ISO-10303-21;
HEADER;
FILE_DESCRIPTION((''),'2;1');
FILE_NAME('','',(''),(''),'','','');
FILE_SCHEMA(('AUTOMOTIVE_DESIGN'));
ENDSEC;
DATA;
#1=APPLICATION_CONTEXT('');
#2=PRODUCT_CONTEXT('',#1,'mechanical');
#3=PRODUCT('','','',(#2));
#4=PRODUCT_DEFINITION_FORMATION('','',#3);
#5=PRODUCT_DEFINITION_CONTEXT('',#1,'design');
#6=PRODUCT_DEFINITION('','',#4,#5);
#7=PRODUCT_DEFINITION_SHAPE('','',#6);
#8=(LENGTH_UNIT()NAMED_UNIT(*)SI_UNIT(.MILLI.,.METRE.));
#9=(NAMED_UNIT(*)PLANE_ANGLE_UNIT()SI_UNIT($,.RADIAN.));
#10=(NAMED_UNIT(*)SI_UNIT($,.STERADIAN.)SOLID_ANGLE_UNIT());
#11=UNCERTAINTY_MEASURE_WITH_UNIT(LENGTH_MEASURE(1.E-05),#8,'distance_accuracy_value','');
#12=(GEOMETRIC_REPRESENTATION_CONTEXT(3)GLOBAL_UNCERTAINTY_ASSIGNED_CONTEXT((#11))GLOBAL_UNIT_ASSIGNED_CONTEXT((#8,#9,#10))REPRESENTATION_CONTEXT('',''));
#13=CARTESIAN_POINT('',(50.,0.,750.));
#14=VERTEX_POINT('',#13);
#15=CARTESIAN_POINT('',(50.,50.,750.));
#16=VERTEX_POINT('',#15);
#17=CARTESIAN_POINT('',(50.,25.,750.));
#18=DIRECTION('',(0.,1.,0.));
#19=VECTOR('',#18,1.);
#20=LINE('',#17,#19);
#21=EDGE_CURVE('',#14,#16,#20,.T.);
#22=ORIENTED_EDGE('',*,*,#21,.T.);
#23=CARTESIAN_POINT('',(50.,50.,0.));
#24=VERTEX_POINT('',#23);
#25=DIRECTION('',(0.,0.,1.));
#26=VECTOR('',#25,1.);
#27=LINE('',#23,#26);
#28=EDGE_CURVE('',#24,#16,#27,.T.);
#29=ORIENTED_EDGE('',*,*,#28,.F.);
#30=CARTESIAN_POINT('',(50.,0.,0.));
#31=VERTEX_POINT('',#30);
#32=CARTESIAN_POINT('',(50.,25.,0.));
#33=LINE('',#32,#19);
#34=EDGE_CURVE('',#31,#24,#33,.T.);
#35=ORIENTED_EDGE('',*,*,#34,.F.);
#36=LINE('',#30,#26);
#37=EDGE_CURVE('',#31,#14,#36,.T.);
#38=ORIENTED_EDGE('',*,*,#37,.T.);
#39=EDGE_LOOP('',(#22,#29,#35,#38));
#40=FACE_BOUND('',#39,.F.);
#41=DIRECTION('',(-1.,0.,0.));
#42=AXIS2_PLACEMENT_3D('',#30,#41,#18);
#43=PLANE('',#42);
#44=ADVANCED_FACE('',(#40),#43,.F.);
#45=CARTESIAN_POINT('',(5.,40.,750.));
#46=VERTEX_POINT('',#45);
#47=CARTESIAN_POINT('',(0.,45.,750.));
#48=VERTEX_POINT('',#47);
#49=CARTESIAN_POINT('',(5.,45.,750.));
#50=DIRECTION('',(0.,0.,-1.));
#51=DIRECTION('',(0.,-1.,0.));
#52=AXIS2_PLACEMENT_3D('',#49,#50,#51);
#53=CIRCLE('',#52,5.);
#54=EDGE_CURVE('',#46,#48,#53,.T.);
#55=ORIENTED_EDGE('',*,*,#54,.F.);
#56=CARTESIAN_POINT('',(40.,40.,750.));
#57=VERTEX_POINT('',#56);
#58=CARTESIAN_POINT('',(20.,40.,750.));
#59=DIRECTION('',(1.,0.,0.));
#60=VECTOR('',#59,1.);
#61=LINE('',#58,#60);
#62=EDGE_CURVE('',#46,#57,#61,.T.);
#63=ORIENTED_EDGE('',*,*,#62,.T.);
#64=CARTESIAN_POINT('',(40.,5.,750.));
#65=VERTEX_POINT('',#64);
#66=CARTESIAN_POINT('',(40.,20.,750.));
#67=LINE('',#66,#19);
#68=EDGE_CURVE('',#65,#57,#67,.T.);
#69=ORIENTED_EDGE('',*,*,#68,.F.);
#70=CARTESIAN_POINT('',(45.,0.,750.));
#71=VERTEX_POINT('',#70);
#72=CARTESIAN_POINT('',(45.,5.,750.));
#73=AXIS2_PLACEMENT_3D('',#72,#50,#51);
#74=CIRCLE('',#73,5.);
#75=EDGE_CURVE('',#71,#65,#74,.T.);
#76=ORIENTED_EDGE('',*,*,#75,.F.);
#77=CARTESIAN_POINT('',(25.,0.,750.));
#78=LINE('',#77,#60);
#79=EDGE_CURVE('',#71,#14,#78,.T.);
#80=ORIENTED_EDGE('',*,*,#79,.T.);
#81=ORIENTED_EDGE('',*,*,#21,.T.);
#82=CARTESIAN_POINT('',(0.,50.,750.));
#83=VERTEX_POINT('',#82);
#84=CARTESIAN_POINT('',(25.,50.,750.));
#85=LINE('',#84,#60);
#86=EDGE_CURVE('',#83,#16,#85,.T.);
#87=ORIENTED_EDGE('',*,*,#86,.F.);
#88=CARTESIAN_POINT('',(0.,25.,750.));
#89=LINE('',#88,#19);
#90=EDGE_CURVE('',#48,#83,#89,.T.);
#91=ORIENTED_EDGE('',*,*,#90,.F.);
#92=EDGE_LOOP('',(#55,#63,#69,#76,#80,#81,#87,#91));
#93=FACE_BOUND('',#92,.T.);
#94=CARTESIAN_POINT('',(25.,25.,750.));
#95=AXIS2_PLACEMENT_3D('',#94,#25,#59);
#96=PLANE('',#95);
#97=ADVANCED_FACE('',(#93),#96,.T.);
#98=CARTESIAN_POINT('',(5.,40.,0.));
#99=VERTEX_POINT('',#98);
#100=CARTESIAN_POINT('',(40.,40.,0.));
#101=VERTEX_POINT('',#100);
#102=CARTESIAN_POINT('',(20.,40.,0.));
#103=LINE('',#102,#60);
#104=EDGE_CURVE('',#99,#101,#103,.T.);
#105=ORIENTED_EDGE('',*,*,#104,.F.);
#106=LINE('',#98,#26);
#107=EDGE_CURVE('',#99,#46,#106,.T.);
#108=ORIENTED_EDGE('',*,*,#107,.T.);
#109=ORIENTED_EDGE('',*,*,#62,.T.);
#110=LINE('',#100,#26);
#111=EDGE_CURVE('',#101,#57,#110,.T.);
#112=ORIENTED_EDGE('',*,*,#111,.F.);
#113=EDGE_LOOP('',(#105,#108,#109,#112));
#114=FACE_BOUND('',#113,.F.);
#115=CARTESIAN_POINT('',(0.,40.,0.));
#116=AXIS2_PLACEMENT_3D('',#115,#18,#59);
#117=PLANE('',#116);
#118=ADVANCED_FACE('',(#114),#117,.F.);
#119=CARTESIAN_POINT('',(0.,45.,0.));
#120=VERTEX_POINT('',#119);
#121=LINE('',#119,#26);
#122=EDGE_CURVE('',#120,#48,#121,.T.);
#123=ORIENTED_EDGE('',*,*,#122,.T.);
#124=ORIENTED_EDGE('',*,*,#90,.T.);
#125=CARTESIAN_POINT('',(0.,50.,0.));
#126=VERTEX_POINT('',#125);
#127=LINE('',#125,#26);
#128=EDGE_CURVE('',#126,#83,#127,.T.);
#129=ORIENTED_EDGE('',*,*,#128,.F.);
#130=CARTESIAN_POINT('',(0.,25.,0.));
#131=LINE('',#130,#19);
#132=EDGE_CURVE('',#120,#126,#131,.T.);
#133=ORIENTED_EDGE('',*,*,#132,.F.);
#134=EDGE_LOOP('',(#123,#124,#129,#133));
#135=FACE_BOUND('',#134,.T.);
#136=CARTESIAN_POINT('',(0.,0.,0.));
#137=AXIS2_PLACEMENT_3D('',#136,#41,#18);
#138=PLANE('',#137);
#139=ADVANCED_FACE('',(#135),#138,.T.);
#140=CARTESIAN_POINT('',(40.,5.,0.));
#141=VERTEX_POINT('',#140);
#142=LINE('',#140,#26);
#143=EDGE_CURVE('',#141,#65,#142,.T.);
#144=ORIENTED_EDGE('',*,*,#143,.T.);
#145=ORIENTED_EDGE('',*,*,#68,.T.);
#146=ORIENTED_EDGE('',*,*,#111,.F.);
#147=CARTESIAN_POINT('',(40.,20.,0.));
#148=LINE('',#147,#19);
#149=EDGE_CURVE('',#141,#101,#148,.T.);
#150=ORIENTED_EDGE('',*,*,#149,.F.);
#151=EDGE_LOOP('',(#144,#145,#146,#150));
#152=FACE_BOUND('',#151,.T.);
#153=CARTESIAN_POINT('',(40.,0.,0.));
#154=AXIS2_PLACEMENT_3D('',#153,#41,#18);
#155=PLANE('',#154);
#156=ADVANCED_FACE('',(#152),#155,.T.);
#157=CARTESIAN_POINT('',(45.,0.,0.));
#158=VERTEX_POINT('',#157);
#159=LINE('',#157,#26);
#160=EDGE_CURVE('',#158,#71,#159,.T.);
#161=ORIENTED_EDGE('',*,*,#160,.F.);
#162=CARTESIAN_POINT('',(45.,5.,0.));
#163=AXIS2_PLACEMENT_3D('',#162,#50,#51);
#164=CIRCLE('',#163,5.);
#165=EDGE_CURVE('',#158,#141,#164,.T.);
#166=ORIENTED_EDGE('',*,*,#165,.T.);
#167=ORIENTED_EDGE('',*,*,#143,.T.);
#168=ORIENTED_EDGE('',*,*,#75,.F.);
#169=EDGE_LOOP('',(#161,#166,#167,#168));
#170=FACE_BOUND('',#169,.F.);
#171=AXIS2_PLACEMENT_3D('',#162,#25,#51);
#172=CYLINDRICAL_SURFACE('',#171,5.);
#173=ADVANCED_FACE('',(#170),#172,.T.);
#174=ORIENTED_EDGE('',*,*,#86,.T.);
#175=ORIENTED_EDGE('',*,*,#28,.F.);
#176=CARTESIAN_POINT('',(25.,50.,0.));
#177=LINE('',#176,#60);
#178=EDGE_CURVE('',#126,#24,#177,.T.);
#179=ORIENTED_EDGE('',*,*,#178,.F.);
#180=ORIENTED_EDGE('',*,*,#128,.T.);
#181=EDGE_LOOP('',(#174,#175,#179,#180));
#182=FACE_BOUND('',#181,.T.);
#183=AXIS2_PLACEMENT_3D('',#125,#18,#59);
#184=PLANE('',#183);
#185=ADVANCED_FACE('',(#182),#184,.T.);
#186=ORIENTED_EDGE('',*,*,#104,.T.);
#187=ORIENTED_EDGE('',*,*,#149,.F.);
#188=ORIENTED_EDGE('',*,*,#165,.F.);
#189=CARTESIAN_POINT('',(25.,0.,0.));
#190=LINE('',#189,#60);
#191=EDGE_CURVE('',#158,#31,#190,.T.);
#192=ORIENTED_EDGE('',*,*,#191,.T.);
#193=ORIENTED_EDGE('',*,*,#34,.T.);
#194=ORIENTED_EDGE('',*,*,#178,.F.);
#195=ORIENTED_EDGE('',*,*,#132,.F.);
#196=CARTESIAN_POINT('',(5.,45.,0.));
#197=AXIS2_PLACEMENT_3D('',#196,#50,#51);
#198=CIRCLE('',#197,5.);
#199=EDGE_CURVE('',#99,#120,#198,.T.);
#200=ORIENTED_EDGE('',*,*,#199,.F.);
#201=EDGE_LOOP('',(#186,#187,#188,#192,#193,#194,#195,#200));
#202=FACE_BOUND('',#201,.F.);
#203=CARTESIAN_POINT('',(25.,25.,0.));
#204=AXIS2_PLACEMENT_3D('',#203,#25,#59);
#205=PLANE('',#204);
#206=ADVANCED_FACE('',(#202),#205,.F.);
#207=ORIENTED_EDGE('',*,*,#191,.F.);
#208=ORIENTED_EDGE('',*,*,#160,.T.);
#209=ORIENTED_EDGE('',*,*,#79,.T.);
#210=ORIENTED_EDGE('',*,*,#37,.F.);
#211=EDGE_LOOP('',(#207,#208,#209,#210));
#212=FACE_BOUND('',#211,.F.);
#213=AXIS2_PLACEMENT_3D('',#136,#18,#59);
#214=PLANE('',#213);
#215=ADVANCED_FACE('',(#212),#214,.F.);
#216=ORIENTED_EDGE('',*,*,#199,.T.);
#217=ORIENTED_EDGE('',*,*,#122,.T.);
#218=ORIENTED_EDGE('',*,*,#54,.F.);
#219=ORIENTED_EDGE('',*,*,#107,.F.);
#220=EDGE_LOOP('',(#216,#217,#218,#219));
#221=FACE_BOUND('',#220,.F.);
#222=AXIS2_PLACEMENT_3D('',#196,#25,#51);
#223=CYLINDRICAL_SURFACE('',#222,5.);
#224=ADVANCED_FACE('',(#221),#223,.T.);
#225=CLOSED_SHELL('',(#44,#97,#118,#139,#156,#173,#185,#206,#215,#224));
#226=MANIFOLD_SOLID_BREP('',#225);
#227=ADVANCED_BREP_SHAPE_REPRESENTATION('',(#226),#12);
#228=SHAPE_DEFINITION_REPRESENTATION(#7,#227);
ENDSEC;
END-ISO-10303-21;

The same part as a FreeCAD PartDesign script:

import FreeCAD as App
import Part
import Sketcher
from FreeCAD import Vector


def edges_at(feature, points):
    """Names of the edges that pass closest to the given points."""
    edges = feature.Shape.Edges
    near = lambda p: min(range(len(edges)), key=lambda i: edges[i].distToShape(Part.Vertex(*p))[0])
    return sorted({f"Edge{near(p) + 1}" for p in points})

doc = App.newDocument("Part")
body = doc.addObject("PartDesign::Body", "Body")

# Sketch on XY plane
sketch1 = body.newObject("Sketcher::SketchObject", "Sketch")
sketch1.AttachmentSupport = (doc.getObject("XY_Plane"), [""])
sketch1.MapMode = "FlatFace"
sketch1.addGeometry([
    Part.LineSegment(Vector(0, 40, 0), Vector(0, 0, 0)),
    Part.LineSegment(Vector(0, 0, 0), Vector(40, 0, 0)),
    Part.LineSegment(Vector(40, 0, 0), Vector(40, 40, 0)),
    Part.LineSegment(Vector(40, 40, 0), Vector(0, 40, 0)),
], False)
sketch1.addConstraint([
    Sketcher.Constraint("Coincident", 0, 2, 1, 1),
    Sketcher.Constraint("Coincident", 1, 2, 2, 1),
    Sketcher.Constraint("Coincident", 2, 2, 3, 1),
    Sketcher.Constraint("Coincident", 3, 2, 0, 1),
    Sketcher.Constraint("Vertical", 0),
    Sketcher.Constraint("Horizontal", 1),
    Sketcher.Constraint("Vertical", 2),
    Sketcher.Constraint("Horizontal", 3),
    Sketcher.Constraint("Coincident", 0, 2, -1, 1),
    Sketcher.Constraint("Equal", 3, 0),
    Sketcher.Constraint("DistanceX", 1, 1, 1, 2, 40.0),
])
pad1 = body.newObject("PartDesign::Pad", "Pad")
pad1.Profile = sketch1
pad1.Length = 750
body2 = doc.addObject("PartDesign::Body", "Body001")

# Sketch on XY plane
sketch2 = body2.newObject("Sketcher::SketchObject", "Sketch001")
sketch2.AttachmentSupport = (doc.getObject("XY_Plane001"), [""])
sketch2.MapMode = "FlatFace"
sketch2.addGeometry([
    Part.LineSegment(Vector(0, 50, 0), Vector(0, 0, 0)),
    Part.LineSegment(Vector(0, 0, 0), Vector(50, 0, 0)),
    Part.LineSegment(Vector(50, 0, 0), Vector(50, 50, 0)),
    Part.LineSegment(Vector(50, 50, 0), Vector(0, 50, 0)),
], False)
sketch2.addConstraint([
    Sketcher.Constraint("Coincident", 0, 2, 1, 1),
    Sketcher.Constraint("Coincident", 1, 2, 2, 1),
    Sketcher.Constraint("Coincident", 2, 2, 3, 1),
    Sketcher.Constraint("Coincident", 3, 2, 0, 1),
    Sketcher.Constraint("Vertical", 0),
    Sketcher.Constraint("Horizontal", 1),
    Sketcher.Constraint("Vertical", 2),
    Sketcher.Constraint("Horizontal", 3),
    Sketcher.Constraint("Coincident", 0, 2, -1, 1),
    Sketcher.Constraint("Equal", 3, 0),
    Sketcher.Constraint("DistanceX", 1, 1, 1, 2, 50.0),
])
pad2 = body2.newObject("PartDesign::Pad", "Pad001")
pad2.Profile = sketch2
pad2.Length = 750
doc.recompute()

boolean = body2.newObject("PartDesign::Boolean", "Boolean")
boolean.Type = "Cut"
boolean.addObjects([body])
doc.recompute()

fillet = body2.newObject("PartDesign::Fillet", "Fillet")
fillet.Base = (boolean, edges_at(boolean, [(40, 0, 375)]))
fillet.Radius = 5
doc.recompute()

fillet2 = body2.newObject("PartDesign::Fillet", "Fillet001")
fillet2.Base = (fillet, edges_at(fillet, [(0, 40, 375)]))
fillet2.Radius = 5

doc.recompute()
